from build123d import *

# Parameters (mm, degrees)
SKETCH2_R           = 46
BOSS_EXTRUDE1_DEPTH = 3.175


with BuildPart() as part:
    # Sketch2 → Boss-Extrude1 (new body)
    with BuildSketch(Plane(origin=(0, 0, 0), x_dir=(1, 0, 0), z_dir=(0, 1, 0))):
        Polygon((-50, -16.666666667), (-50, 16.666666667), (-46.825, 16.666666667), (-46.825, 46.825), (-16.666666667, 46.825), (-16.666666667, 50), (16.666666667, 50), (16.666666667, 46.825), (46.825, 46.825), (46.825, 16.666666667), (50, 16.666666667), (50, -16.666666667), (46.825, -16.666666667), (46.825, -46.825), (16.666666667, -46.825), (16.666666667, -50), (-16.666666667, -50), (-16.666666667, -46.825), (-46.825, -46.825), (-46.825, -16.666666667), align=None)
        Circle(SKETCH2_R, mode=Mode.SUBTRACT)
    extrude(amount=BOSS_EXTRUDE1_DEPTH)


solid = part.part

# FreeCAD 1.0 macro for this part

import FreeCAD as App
import Part
import Sketcher

V = App.Vector
Q = App.Units.Quantity


def add_polygon(sketch, points):
    """Adds a closed chain of lines whose ends are joined by coincident constraints."""
    first, n = sketch.GeometryCount, len(points)
    for a, b in zip(points, points[1:] + points[:1]):
        sketch.addGeometry(Part.LineSegment(App.Vector(*a, 0), App.Vector(*b, 0)), False)
    for i in range(n):
        sketch.addConstraint(Sketcher.Constraint("Coincident", first + i, 2, first + (i + 1) % n, 1))

doc = App.newDocument("Part")
body = doc.addObject("PartDesign::Body", "Body")

# Sketch on XZ plane
sketch1 = body.newObject("Sketcher::SketchObject", "Sketch")
sketch1.AttachmentSupport = (doc.getObject("XZ_Plane"), [""])
sketch1.MapMode = "FlatFace"
add_polygon(sketch1, [(-50, -16.7), (-50, 16.7), (-46.8, 16.7), (-46.8, 46.8), (-16.7, 46.8), (-16.7, 50), (16.7, 50), (16.7, 46.8), (46.8, 46.8), (46.8, 16.7), (50, 16.7), (50, -16.7), (46.8, -16.7), (46.8, -46.8), (16.7, -46.8), (16.7, -50), (-16.7, -50), (-16.7, -46.8), (-46.8, -46.8), (-46.8, -16.7)])  # lines 0-19
sketch1.addGeometry(Part.Circle(V(0, 0, 0), V(0, 0, 1), 46), False)  # 20
sketch1.addConstraint(Sketcher.Constraint("Vertical", 0))
sketch1.addConstraint(Sketcher.Constraint("Horizontal", 1))
sketch1.addConstraint(Sketcher.Constraint("Vertical", 2))
sketch1.addConstraint(Sketcher.Constraint("Horizontal", 3))
sketch1.addConstraint(Sketcher.Constraint("Vertical", 4))
sketch1.addConstraint(Sketcher.Constraint("Horizontal", 5))
sketch1.addConstraint(Sketcher.Constraint("Vertical", 6))
sketch1.addConstraint(Sketcher.Constraint("Horizontal", 7))
sketch1.addConstraint(Sketcher.Constraint("Vertical", 8))
sketch1.addConstraint(Sketcher.Constraint("Horizontal", 9))
sketch1.addConstraint(Sketcher.Constraint("Vertical", 10))
sketch1.addConstraint(Sketcher.Constraint("Horizontal", 11))
sketch1.addConstraint(Sketcher.Constraint("Vertical", 12))
sketch1.addConstraint(Sketcher.Constraint("Horizontal", 13))
sketch1.addConstraint(Sketcher.Constraint("Vertical", 14))
sketch1.addConstraint(Sketcher.Constraint("Horizontal", 15))
sketch1.addConstraint(Sketcher.Constraint("Vertical", 16))
sketch1.addConstraint(Sketcher.Constraint("Horizontal", 17))
sketch1.addConstraint(Sketcher.Constraint("Vertical", 18))
sketch1.addConstraint(Sketcher.Constraint("Horizontal", 19))
sketch1.addConstraint(Sketcher.Constraint("Coincident", 20, 3, -1, 1))
sketch1.addConstraint(Sketcher.Constraint("Symmetric", 0, 2, 10, 2, -1, 1))
sketch1.addConstraint(Sketcher.Constraint("Symmetric", 2, 2, 12, 2, -1, 1))
sketch1.addConstraint(Sketcher.Constraint("Symmetric", 4, 2, 14, 2, -1, 1))
sketch1.addConstraint(Sketcher.Constraint("Symmetric", 6, 2, 16, 2, -1, 1))
sketch1.addConstraint(Sketcher.Constraint("Symmetric", 8, 2, 18, 2, -1, 1))
sketch1.addConstraint(Sketcher.Constraint("Symmetric", 3, 2, 6, 2, -2))
sketch1.addConstraint(Sketcher.Constraint("Symmetric", 1, 2, 8, 2, -2))
sketch1.addConstraint(Sketcher.Constraint("Equal", 15, 0))
sketch1.addConstraint(Sketcher.Constraint("Equal", 17, 2))
sketch1.addConstraint(Sketcher.Constraint("Equal", 19, 4))
sketch1.addConstraint(Sketcher.Constraint("Diameter", 20, Q("92 mm")))
sketch1.addConstraint(Sketcher.Constraint("DistanceX", 0, 2, -1, 1, Q("50 mm")))
sketch1.addConstraint(Sketcher.Constraint("DistanceX", 1, 1, 1, 2, Q("3.175 mm")))
sketch1.addConstraint(Sketcher.Constraint("DistanceX", 3, 1, 3, 2, Q("30.158333 mm")))
pad1 = body.newObject("PartDesign::Pad", "Pad")
pad1.Profile = sketch1
pad1.Length = 3.175
pad1.Reversed = True

doc.recompute()
